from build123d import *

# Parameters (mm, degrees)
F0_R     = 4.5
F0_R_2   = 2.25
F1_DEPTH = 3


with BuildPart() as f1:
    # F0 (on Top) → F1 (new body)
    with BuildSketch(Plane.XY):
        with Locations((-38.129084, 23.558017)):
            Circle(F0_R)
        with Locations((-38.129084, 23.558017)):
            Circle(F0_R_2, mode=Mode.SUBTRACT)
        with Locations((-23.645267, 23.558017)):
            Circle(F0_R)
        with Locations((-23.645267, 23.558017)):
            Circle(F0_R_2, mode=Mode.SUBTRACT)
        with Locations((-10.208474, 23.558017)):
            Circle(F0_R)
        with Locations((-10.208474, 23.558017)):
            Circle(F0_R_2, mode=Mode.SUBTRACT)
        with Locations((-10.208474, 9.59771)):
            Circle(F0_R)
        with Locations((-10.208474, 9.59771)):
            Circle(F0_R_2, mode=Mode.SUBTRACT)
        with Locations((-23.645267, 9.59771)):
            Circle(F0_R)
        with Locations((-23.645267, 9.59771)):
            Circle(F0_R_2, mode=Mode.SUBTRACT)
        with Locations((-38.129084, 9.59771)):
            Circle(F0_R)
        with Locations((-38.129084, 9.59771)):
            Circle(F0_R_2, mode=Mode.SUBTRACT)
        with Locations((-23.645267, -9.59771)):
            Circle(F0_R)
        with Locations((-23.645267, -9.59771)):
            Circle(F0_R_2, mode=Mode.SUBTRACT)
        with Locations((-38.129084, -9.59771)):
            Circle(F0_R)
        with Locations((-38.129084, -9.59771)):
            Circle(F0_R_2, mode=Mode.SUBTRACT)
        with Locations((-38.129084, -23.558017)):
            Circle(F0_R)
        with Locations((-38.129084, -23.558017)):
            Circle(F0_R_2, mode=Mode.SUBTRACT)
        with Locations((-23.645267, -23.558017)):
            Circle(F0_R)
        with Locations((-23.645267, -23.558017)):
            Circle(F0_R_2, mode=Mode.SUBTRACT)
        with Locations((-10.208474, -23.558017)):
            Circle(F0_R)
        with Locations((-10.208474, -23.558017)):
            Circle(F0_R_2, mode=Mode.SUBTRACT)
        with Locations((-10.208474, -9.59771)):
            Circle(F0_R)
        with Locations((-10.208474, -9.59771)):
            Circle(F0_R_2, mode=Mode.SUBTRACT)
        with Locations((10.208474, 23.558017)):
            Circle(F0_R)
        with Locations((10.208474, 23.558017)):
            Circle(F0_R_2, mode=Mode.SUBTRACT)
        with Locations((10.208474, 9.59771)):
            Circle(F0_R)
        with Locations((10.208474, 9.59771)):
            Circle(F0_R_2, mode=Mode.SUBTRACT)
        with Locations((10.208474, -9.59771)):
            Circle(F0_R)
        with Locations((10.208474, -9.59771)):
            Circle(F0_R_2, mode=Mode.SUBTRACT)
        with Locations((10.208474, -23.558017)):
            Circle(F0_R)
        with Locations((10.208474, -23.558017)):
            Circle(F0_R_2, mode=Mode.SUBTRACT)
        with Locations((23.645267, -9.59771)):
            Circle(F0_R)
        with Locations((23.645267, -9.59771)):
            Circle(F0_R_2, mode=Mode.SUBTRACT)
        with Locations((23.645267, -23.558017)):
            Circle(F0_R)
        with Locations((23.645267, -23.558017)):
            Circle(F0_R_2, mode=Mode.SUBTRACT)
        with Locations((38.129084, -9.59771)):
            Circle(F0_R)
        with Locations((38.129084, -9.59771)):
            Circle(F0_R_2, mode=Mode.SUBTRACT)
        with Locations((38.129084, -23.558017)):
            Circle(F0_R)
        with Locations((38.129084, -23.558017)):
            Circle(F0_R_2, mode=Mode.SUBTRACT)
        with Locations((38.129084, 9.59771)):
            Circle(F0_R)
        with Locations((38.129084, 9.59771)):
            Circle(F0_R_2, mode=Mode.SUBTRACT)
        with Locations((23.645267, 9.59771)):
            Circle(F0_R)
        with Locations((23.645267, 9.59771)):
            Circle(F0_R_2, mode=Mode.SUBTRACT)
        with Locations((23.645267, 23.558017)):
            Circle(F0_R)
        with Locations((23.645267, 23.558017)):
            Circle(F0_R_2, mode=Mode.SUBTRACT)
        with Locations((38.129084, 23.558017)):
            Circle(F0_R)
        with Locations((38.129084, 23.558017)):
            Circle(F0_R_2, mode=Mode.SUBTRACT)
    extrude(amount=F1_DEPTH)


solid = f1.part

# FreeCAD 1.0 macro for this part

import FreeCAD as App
import Part
import Sketcher

V = App.Vector
Q = App.Units.Quantity

doc = App.newDocument("Part")
body = doc.addObject("PartDesign::Body", "Body")
body.AllowCompound = True

sketch1 = doc.addObject("Sketcher::SketchObject", "Sketch")
body.addObject(sketch1)
sketch1.AttachmentSupport = (doc.XY_Plane, [""])
sketch1.MapMode = "FlatFace"
sketch1.addGeometry(Part.Circle(V(-38.129084, 23.558017, 0), V(0, 0, 1), 4.5), False)
sketch1.addGeometry(Part.Circle(V(-38.129084, 23.558017, 0), V(0, 0, 1), 2.25), False)
sketch1.addGeometry(Part.Circle(V(-23.645267, 23.558017, 0), V(0, 0, 1), 4.5), False)
sketch1.addGeometry(Part.Circle(V(-23.645267, 23.558017, 0), V(0, 0, 1), 2.25), False)
sketch1.addGeometry(Part.Circle(V(-10.208474, 23.558017, 0), V(0, 0, 1), 4.5), False)
sketch1.addGeometry(Part.Circle(V(-10.208474, 23.558017, 0), V(0, 0, 1), 2.25), False)
sketch1.addGeometry(Part.Circle(V(-10.208474, 9.59771, 0), V(0, 0, 1), 4.5), False)
sketch1.addGeometry(Part.Circle(V(-10.208474, 9.59771, 0), V(0, 0, 1), 2.25), False)
sketch1.addGeometry(Part.Circle(V(-23.645267, 9.59771, 0), V(0, 0, 1), 4.5), False)
sketch1.addGeometry(Part.Circle(V(-23.645267, 9.59771, 0), V(0, 0, 1), 2.25), False)
sketch1.addGeometry(Part.Circle(V(-38.129084, 9.59771, 0), V(0, 0, 1), 4.5), False)
sketch1.addGeometry(Part.Circle(V(-38.129084, 9.59771, 0), V(0, 0, 1), 2.25), False)
sketch1.addGeometry(Part.Circle(V(-23.645267, -9.59771, 0), V(0, 0, 1), 4.5), False)
sketch1.addGeometry(Part.Circle(V(-23.645267, -9.59771, 0), V(0, 0, 1), 2.25), False)
sketch1.addGeometry(Part.Circle(V(-38.129084, -9.59771, 0), V(0, 0, 1), 4.5), False)
sketch1.addGeometry(Part.Circle(V(-38.129084, -9.59771, 0), V(0, 0, 1), 2.25), False)
sketch1.addGeometry(Part.Circle(V(-38.129084, -23.558017, 0), V(0, 0, 1), 4.5), False)
sketch1.addGeometry(Part.Circle(V(-38.129084, -23.558017, 0), V(0, 0, 1), 2.25), False)
sketch1.addGeometry(Part.Circle(V(-23.645267, -23.558017, 0), V(0, 0, 1), 4.5), False)
sketch1.addGeometry(Part.Circle(V(-23.645267, -23.558017, 0), V(0, 0, 1), 2.25), False)
sketch1.addGeometry(Part.Circle(V(-10.208474, -23.558017, 0), V(0, 0, 1), 4.5), False)
sketch1.addGeometry(Part.Circle(V(-10.208474, -23.558017, 0), V(0, 0, 1), 2.25), False)
sketch1.addGeometry(Part.Circle(V(-10.208474, -9.59771, 0), V(0, 0, 1), 4.5), False)
sketch1.addGeometry(Part.Circle(V(-10.208474, -9.59771, 0), V(0, 0, 1), 2.25), False)
sketch1.addGeometry(Part.Circle(V(10.208474, 23.558017, 0), V(0, 0, 1), 4.5), False)
sketch1.addGeometry(Part.Circle(V(10.208474, 23.558017, 0), V(0, 0, 1), 2.25), False)
sketch1.addGeometry(Part.Circle(V(10.208474, 9.59771, 0), V(0, 0, 1), 4.5), False)
sketch1.addGeometry(Part.Circle(V(10.208474, 9.59771, 0), V(0, 0, 1), 2.25), False)
sketch1.addGeometry(Part.Circle(V(10.208474, -9.59771, 0), V(0, 0, 1), 4.5), False)
sketch1.addGeometry(Part.Circle(V(10.208474, -9.59771, 0), V(0, 0, 1), 2.25), False)
sketch1.addGeometry(Part.Circle(V(10.208474, -23.558017, 0), V(0, 0, 1), 4.5), False)
sketch1.addGeometry(Part.Circle(V(10.208474, -23.558017, 0), V(0, 0, 1), 2.25), False)
sketch1.addGeometry(Part.Circle(V(23.645267, -9.59771, 0), V(0, 0, 1), 4.5), False)
sketch1.addGeometry(Part.Circle(V(23.645267, -9.59771, 0), V(0, 0, 1), 2.25), False)
sketch1.addGeometry(Part.Circle(V(23.645267, -23.558017, 0), V(0, 0, 1), 4.5), False)
sketch1.addGeometry(Part.Circle(V(23.645267, -23.558017, 0), V(0, 0, 1), 2.25), False)
sketch1.addGeometry(Part.Circle(V(38.129084, -9.59771, 0), V(0, 0, 1), 4.5), False)
sketch1.addGeometry(Part.Circle(V(38.129084, -9.59771, 0), V(0, 0, 1), 2.25), False)
sketch1.addGeometry(Part.Circle(V(38.129084, -23.558017, 0), V(0, 0, 1), 4.5), False)
sketch1.addGeometry(Part.Circle(V(38.129084, -23.558017, 0), V(0, 0, 1), 2.25), False)
sketch1.addGeometry(Part.Circle(V(38.129084, 9.59771, 0), V(0, 0, 1), 4.5), False)
sketch1.addGeometry(Part.Circle(V(38.129084, 9.59771, 0), V(0, 0, 1), 2.25), False)
sketch1.addGeometry(Part.Circle(V(23.645267, 9.59771, 0), V(0, 0, 1), 4.5), False)
sketch1.addGeometry(Part.Circle(V(23.645267, 9.59771, 0), V(0, 0, 1), 2.25), False)
sketch1.addGeometry(Part.Circle(V(23.645267, 23.558017, 0), V(0, 0, 1), 4.5), False)
sketch1.addGeometry(Part.Circle(V(23.645267, 23.558017, 0), V(0, 0, 1), 2.25), False)
sketch1.addGeometry(Part.Circle(V(38.129084, 23.558017, 0), V(0, 0, 1), 4.5), False)
sketch1.addGeometry(Part.Circle(V(38.129084, 23.558017, 0), V(0, 0, 1), 2.25), False)
sketch1.addConstraint(Sketcher.Constraint("Coincident", 1, 3, 0, 3))
sketch1.addConstraint(Sketcher.Constraint("Coincident", 3, 3, 2, 3))
sketch1.addConstraint(Sketcher.Constraint("Coincident", 5, 3, 4, 3))
sketch1.addConstraint(Sketcher.Constraint("Coincident", 7, 3, 6, 3))
sketch1.addConstraint(Sketcher.Constraint("Coincident", 9, 3, 8, 3))
sketch1.addConstraint(Sketcher.Constraint("Coincident", 11, 3, 10, 3))
sketch1.addConstraint(Sketcher.Constraint("Coincident", 13, 3, 12, 3))
sketch1.addConstraint(Sketcher.Constraint("Coincident", 15, 3, 14, 3))
sketch1.addConstraint(Sketcher.Constraint("Coincident", 17, 3, 16, 3))
sketch1.addConstraint(Sketcher.Constraint("Coincident", 19, 3, 18, 3))
sketch1.addConstraint(Sketcher.Constraint("Coincident", 21, 3, 20, 3))
sketch1.addConstraint(Sketcher.Constraint("Coincident", 23, 3, 22, 3))
sketch1.addConstraint(Sketcher.Constraint("Coincident", 25, 3, 24, 3))
sketch1.addConstraint(Sketcher.Constraint("Coincident", 27, 3, 26, 3))
sketch1.addConstraint(Sketcher.Constraint("Coincident", 29, 3, 28, 3))
sketch1.addConstraint(Sketcher.Constraint("Coincident", 31, 3, 30, 3))
sketch1.addConstraint(Sketcher.Constraint("Coincident", 33, 3, 32, 3))
sketch1.addConstraint(Sketcher.Constraint("Coincident", 35, 3, 34, 3))
sketch1.addConstraint(Sketcher.Constraint("Coincident", 37, 3, 36, 3))
sketch1.addConstraint(Sketcher.Constraint("Coincident", 39, 3, 38, 3))
sketch1.addConstraint(Sketcher.Constraint("Coincident", 41, 3, 40, 3))
sketch1.addConstraint(Sketcher.Constraint("Coincident", 43, 3, 42, 3))
sketch1.addConstraint(Sketcher.Constraint("Coincident", 45, 3, 44, 3))
sketch1.addConstraint(Sketcher.Constraint("Coincident", 47, 3, 46, 3))
sketch1.addConstraint(Sketcher.Constraint("Equal", 0, 2))
sketch1.addConstraint(Sketcher.Constraint("Equal", 1, 3))
sketch1.addConstraint(Sketcher.Constraint("Equal", 2, 4))
sketch1.addConstraint(Sketcher.Constraint("Equal", 3, 5))
sketch1.addConstraint(Sketcher.Constraint("Equal", 4, 6))
sketch1.addConstraint(Sketcher.Constraint("Equal", 5, 7))
sketch1.addConstraint(Sketcher.Constraint("Equal", 6, 8))
sketch1.addConstraint(Sketcher.Constraint("Equal", 7, 9))
sketch1.addConstraint(Sketcher.Constraint("Equal", 8, 10))
sketch1.addConstraint(Sketcher.Constraint("Equal", 9, 11))
sketch1.addConstraint(Sketcher.Constraint("Equal", 10, 12))
sketch1.addConstraint(Sketcher.Constraint("Equal", 11, 13))
sketch1.addConstraint(Sketcher.Constraint("Equal", 12, 14))
sketch1.addConstraint(Sketcher.Constraint("Equal", 13, 15))
sketch1.addConstraint(Sketcher.Constraint("Equal", 14, 16))
sketch1.addConstraint(Sketcher.Constraint("Equal", 15, 17))
sketch1.addConstraint(Sketcher.Constraint("Equal", 16, 18))
sketch1.addConstraint(Sketcher.Constraint("Equal", 17, 19))
sketch1.addConstraint(Sketcher.Constraint("Equal", 18, 20))
sketch1.addConstraint(Sketcher.Constraint("Equal", 19, 21))
sketch1.addConstraint(Sketcher.Constraint("Equal", 20, 22))
sketch1.addConstraint(Sketcher.Constraint("Equal", 21, 23))
sketch1.addConstraint(Sketcher.Constraint("Equal", 22, 24))
sketch1.addConstraint(Sketcher.Constraint("Equal", 23, 25))
sketch1.addConstraint(Sketcher.Constraint("Equal", 24, 26))
sketch1.addConstraint(Sketcher.Constraint("Equal", 25, 27))
sketch1.addConstraint(Sketcher.Constraint("Equal", 26, 28))
sketch1.addConstraint(Sketcher.Constraint("Equal", 27, 29))
sketch1.addConstraint(Sketcher.Constraint("Equal", 28, 30))
sketch1.addConstraint(Sketcher.Constraint("Equal", 29, 31))
sketch1.addConstraint(Sketcher.Constraint("Equal", 30, 32))
sketch1.addConstraint(Sketcher.Constraint("Equal", 31, 33))
sketch1.addConstraint(Sketcher.Constraint("Equal", 32, 34))
sketch1.addConstraint(Sketcher.Constraint("Equal", 33, 35))
sketch1.addConstraint(Sketcher.Constraint("Equal", 34, 36))
sketch1.addConstraint(Sketcher.Constraint("Equal", 35, 37))
sketch1.addConstraint(Sketcher.Constraint("Equal", 36, 38))
sketch1.addConstraint(Sketcher.Constraint("Equal", 37, 39))
sketch1.addConstraint(Sketcher.Constraint("Equal", 38, 40))
sketch1.addConstraint(Sketcher.Constraint("Equal", 39, 41))
sketch1.addConstraint(Sketcher.Constraint("Equal", 40, 42))
sketch1.addConstraint(Sketcher.Constraint("Equal", 41, 43))
sketch1.addConstraint(Sketcher.Constraint("Equal", 42, 44))
sketch1.addConstraint(Sketcher.Constraint("Equal", 43, 45))
sketch1.addConstraint(Sketcher.Constraint("Equal", 44, 46))
sketch1.addConstraint(Sketcher.Constraint("Equal", 45, 47))
sketch1.addConstraint(Sketcher.Constraint("Symmetric", 20, 3, 24, 3, -1, 1))
sketch1.addConstraint(Sketcher.Constraint("Symmetric", 22, 3, 26, 3, -1, 1))
sketch1.addConstraint(Sketcher.Constraint("Symmetric", 6, 3, 28, 3, -1, 1))
sketch1.addConstraint(Sketcher.Constraint("Symmetric", 4, 3, 30, 3, -1, 1))
sketch1.addConstraint(Sketcher.Constraint("Symmetric", 8, 3, 32, 3, -1, 1))
sketch1.addConstraint(Sketcher.Constraint("Symmetric", 2, 3, 34, 3, -1, 1))
sketch1.addConstraint(Sketcher.Constraint("Symmetric", 10, 3, 36, 3, -1, 1))
sketch1.addConstraint(Sketcher.Constraint("Symmetric", 0, 3, 38, 3, -1, 1))
sketch1.addConstraint(Sketcher.Constraint("Symmetric", 14, 3, 40, 3, -1, 1))
sketch1.addConstraint(Sketcher.Constraint("Symmetric", 12, 3, 42, 3, -1, 1))
sketch1.addConstraint(Sketcher.Constraint("Symmetric", 18, 3, 44, 3, -1, 1))
sketch1.addConstraint(Sketcher.Constraint("Symmetric", 16, 3, 46, 3, -1, 1))
sketch1.addConstraint(Sketcher.Constraint("Symmetric", 4, 3, 24, 3, -2))
sketch1.addConstraint(Sketcher.Constraint("Symmetric", 6, 3, 26, 3, -2))
sketch1.addConstraint(Sketcher.Constraint("Symmetric", 12, 3, 32, 3, -2))
sketch1.addConstraint(Sketcher.Constraint("Symmetric", 18, 3, 34, 3, -2))
sketch1.addConstraint(Sketcher.Constraint("Symmetric", 14, 3, 36, 3, -2))
sketch1.addConstraint(Sketcher.Constraint("Symmetric", 16, 3, 38, 3, -2))
sketch1.addConstraint(Sketcher.Constraint("Horizontal", 1, 3, 2, 3))
sketch1.addConstraint(Sketcher.Constraint("Horizontal", 3, 3, 4, 3))
sketch1.addConstraint(Sketcher.Constraint("Horizontal", 7, 3, 8, 3))
sketch1.addConstraint(Sketcher.Constraint("Horizontal", 9, 3, 10, 3))
sketch1.addConstraint(Sketcher.Constraint("Vertical", 5, 3, 6, 3))
sketch1.addConstraint(Sketcher.Constraint("Vertical", 3, 3, 8, 3))
sketch1.addConstraint(Sketcher.Constraint("Vertical", 1, 3, 10, 3))
sketch1.addConstraint(Sketcher.Constraint("Diameter", 0, Q("9 mm")))
sketch1.addConstraint(Sketcher.Constraint("Diameter", 1, Q("4.5 mm")))
sketch1.addConstraint(Sketcher.Constraint("DistanceY", -1, 1, 6, 3, Q("9.59771 mm")))
sketch1.addConstraint(Sketcher.Constraint("DistanceX", 0, 3, 4, 3, Q("27.92061 mm")))
sketch1.addConstraint(Sketcher.Constraint("DistanceX", 4, 3, 24, 3, Q("20.416948 mm")))
sketch1.addConstraint(Sketcher.Constraint("DistanceX", 2, 3, 24, 3, Q("33.853741 mm")))
sketch1.addConstraint(Sketcher.Constraint("DistanceY", -1, 1, 0, 3, Q("23.558017 mm")))
pad1 = doc.addObject("PartDesign::Pad", "Pad")
body.addObject(pad1)
pad1.Profile = sketch1
pad1.Length = 3

doc.recompute()
